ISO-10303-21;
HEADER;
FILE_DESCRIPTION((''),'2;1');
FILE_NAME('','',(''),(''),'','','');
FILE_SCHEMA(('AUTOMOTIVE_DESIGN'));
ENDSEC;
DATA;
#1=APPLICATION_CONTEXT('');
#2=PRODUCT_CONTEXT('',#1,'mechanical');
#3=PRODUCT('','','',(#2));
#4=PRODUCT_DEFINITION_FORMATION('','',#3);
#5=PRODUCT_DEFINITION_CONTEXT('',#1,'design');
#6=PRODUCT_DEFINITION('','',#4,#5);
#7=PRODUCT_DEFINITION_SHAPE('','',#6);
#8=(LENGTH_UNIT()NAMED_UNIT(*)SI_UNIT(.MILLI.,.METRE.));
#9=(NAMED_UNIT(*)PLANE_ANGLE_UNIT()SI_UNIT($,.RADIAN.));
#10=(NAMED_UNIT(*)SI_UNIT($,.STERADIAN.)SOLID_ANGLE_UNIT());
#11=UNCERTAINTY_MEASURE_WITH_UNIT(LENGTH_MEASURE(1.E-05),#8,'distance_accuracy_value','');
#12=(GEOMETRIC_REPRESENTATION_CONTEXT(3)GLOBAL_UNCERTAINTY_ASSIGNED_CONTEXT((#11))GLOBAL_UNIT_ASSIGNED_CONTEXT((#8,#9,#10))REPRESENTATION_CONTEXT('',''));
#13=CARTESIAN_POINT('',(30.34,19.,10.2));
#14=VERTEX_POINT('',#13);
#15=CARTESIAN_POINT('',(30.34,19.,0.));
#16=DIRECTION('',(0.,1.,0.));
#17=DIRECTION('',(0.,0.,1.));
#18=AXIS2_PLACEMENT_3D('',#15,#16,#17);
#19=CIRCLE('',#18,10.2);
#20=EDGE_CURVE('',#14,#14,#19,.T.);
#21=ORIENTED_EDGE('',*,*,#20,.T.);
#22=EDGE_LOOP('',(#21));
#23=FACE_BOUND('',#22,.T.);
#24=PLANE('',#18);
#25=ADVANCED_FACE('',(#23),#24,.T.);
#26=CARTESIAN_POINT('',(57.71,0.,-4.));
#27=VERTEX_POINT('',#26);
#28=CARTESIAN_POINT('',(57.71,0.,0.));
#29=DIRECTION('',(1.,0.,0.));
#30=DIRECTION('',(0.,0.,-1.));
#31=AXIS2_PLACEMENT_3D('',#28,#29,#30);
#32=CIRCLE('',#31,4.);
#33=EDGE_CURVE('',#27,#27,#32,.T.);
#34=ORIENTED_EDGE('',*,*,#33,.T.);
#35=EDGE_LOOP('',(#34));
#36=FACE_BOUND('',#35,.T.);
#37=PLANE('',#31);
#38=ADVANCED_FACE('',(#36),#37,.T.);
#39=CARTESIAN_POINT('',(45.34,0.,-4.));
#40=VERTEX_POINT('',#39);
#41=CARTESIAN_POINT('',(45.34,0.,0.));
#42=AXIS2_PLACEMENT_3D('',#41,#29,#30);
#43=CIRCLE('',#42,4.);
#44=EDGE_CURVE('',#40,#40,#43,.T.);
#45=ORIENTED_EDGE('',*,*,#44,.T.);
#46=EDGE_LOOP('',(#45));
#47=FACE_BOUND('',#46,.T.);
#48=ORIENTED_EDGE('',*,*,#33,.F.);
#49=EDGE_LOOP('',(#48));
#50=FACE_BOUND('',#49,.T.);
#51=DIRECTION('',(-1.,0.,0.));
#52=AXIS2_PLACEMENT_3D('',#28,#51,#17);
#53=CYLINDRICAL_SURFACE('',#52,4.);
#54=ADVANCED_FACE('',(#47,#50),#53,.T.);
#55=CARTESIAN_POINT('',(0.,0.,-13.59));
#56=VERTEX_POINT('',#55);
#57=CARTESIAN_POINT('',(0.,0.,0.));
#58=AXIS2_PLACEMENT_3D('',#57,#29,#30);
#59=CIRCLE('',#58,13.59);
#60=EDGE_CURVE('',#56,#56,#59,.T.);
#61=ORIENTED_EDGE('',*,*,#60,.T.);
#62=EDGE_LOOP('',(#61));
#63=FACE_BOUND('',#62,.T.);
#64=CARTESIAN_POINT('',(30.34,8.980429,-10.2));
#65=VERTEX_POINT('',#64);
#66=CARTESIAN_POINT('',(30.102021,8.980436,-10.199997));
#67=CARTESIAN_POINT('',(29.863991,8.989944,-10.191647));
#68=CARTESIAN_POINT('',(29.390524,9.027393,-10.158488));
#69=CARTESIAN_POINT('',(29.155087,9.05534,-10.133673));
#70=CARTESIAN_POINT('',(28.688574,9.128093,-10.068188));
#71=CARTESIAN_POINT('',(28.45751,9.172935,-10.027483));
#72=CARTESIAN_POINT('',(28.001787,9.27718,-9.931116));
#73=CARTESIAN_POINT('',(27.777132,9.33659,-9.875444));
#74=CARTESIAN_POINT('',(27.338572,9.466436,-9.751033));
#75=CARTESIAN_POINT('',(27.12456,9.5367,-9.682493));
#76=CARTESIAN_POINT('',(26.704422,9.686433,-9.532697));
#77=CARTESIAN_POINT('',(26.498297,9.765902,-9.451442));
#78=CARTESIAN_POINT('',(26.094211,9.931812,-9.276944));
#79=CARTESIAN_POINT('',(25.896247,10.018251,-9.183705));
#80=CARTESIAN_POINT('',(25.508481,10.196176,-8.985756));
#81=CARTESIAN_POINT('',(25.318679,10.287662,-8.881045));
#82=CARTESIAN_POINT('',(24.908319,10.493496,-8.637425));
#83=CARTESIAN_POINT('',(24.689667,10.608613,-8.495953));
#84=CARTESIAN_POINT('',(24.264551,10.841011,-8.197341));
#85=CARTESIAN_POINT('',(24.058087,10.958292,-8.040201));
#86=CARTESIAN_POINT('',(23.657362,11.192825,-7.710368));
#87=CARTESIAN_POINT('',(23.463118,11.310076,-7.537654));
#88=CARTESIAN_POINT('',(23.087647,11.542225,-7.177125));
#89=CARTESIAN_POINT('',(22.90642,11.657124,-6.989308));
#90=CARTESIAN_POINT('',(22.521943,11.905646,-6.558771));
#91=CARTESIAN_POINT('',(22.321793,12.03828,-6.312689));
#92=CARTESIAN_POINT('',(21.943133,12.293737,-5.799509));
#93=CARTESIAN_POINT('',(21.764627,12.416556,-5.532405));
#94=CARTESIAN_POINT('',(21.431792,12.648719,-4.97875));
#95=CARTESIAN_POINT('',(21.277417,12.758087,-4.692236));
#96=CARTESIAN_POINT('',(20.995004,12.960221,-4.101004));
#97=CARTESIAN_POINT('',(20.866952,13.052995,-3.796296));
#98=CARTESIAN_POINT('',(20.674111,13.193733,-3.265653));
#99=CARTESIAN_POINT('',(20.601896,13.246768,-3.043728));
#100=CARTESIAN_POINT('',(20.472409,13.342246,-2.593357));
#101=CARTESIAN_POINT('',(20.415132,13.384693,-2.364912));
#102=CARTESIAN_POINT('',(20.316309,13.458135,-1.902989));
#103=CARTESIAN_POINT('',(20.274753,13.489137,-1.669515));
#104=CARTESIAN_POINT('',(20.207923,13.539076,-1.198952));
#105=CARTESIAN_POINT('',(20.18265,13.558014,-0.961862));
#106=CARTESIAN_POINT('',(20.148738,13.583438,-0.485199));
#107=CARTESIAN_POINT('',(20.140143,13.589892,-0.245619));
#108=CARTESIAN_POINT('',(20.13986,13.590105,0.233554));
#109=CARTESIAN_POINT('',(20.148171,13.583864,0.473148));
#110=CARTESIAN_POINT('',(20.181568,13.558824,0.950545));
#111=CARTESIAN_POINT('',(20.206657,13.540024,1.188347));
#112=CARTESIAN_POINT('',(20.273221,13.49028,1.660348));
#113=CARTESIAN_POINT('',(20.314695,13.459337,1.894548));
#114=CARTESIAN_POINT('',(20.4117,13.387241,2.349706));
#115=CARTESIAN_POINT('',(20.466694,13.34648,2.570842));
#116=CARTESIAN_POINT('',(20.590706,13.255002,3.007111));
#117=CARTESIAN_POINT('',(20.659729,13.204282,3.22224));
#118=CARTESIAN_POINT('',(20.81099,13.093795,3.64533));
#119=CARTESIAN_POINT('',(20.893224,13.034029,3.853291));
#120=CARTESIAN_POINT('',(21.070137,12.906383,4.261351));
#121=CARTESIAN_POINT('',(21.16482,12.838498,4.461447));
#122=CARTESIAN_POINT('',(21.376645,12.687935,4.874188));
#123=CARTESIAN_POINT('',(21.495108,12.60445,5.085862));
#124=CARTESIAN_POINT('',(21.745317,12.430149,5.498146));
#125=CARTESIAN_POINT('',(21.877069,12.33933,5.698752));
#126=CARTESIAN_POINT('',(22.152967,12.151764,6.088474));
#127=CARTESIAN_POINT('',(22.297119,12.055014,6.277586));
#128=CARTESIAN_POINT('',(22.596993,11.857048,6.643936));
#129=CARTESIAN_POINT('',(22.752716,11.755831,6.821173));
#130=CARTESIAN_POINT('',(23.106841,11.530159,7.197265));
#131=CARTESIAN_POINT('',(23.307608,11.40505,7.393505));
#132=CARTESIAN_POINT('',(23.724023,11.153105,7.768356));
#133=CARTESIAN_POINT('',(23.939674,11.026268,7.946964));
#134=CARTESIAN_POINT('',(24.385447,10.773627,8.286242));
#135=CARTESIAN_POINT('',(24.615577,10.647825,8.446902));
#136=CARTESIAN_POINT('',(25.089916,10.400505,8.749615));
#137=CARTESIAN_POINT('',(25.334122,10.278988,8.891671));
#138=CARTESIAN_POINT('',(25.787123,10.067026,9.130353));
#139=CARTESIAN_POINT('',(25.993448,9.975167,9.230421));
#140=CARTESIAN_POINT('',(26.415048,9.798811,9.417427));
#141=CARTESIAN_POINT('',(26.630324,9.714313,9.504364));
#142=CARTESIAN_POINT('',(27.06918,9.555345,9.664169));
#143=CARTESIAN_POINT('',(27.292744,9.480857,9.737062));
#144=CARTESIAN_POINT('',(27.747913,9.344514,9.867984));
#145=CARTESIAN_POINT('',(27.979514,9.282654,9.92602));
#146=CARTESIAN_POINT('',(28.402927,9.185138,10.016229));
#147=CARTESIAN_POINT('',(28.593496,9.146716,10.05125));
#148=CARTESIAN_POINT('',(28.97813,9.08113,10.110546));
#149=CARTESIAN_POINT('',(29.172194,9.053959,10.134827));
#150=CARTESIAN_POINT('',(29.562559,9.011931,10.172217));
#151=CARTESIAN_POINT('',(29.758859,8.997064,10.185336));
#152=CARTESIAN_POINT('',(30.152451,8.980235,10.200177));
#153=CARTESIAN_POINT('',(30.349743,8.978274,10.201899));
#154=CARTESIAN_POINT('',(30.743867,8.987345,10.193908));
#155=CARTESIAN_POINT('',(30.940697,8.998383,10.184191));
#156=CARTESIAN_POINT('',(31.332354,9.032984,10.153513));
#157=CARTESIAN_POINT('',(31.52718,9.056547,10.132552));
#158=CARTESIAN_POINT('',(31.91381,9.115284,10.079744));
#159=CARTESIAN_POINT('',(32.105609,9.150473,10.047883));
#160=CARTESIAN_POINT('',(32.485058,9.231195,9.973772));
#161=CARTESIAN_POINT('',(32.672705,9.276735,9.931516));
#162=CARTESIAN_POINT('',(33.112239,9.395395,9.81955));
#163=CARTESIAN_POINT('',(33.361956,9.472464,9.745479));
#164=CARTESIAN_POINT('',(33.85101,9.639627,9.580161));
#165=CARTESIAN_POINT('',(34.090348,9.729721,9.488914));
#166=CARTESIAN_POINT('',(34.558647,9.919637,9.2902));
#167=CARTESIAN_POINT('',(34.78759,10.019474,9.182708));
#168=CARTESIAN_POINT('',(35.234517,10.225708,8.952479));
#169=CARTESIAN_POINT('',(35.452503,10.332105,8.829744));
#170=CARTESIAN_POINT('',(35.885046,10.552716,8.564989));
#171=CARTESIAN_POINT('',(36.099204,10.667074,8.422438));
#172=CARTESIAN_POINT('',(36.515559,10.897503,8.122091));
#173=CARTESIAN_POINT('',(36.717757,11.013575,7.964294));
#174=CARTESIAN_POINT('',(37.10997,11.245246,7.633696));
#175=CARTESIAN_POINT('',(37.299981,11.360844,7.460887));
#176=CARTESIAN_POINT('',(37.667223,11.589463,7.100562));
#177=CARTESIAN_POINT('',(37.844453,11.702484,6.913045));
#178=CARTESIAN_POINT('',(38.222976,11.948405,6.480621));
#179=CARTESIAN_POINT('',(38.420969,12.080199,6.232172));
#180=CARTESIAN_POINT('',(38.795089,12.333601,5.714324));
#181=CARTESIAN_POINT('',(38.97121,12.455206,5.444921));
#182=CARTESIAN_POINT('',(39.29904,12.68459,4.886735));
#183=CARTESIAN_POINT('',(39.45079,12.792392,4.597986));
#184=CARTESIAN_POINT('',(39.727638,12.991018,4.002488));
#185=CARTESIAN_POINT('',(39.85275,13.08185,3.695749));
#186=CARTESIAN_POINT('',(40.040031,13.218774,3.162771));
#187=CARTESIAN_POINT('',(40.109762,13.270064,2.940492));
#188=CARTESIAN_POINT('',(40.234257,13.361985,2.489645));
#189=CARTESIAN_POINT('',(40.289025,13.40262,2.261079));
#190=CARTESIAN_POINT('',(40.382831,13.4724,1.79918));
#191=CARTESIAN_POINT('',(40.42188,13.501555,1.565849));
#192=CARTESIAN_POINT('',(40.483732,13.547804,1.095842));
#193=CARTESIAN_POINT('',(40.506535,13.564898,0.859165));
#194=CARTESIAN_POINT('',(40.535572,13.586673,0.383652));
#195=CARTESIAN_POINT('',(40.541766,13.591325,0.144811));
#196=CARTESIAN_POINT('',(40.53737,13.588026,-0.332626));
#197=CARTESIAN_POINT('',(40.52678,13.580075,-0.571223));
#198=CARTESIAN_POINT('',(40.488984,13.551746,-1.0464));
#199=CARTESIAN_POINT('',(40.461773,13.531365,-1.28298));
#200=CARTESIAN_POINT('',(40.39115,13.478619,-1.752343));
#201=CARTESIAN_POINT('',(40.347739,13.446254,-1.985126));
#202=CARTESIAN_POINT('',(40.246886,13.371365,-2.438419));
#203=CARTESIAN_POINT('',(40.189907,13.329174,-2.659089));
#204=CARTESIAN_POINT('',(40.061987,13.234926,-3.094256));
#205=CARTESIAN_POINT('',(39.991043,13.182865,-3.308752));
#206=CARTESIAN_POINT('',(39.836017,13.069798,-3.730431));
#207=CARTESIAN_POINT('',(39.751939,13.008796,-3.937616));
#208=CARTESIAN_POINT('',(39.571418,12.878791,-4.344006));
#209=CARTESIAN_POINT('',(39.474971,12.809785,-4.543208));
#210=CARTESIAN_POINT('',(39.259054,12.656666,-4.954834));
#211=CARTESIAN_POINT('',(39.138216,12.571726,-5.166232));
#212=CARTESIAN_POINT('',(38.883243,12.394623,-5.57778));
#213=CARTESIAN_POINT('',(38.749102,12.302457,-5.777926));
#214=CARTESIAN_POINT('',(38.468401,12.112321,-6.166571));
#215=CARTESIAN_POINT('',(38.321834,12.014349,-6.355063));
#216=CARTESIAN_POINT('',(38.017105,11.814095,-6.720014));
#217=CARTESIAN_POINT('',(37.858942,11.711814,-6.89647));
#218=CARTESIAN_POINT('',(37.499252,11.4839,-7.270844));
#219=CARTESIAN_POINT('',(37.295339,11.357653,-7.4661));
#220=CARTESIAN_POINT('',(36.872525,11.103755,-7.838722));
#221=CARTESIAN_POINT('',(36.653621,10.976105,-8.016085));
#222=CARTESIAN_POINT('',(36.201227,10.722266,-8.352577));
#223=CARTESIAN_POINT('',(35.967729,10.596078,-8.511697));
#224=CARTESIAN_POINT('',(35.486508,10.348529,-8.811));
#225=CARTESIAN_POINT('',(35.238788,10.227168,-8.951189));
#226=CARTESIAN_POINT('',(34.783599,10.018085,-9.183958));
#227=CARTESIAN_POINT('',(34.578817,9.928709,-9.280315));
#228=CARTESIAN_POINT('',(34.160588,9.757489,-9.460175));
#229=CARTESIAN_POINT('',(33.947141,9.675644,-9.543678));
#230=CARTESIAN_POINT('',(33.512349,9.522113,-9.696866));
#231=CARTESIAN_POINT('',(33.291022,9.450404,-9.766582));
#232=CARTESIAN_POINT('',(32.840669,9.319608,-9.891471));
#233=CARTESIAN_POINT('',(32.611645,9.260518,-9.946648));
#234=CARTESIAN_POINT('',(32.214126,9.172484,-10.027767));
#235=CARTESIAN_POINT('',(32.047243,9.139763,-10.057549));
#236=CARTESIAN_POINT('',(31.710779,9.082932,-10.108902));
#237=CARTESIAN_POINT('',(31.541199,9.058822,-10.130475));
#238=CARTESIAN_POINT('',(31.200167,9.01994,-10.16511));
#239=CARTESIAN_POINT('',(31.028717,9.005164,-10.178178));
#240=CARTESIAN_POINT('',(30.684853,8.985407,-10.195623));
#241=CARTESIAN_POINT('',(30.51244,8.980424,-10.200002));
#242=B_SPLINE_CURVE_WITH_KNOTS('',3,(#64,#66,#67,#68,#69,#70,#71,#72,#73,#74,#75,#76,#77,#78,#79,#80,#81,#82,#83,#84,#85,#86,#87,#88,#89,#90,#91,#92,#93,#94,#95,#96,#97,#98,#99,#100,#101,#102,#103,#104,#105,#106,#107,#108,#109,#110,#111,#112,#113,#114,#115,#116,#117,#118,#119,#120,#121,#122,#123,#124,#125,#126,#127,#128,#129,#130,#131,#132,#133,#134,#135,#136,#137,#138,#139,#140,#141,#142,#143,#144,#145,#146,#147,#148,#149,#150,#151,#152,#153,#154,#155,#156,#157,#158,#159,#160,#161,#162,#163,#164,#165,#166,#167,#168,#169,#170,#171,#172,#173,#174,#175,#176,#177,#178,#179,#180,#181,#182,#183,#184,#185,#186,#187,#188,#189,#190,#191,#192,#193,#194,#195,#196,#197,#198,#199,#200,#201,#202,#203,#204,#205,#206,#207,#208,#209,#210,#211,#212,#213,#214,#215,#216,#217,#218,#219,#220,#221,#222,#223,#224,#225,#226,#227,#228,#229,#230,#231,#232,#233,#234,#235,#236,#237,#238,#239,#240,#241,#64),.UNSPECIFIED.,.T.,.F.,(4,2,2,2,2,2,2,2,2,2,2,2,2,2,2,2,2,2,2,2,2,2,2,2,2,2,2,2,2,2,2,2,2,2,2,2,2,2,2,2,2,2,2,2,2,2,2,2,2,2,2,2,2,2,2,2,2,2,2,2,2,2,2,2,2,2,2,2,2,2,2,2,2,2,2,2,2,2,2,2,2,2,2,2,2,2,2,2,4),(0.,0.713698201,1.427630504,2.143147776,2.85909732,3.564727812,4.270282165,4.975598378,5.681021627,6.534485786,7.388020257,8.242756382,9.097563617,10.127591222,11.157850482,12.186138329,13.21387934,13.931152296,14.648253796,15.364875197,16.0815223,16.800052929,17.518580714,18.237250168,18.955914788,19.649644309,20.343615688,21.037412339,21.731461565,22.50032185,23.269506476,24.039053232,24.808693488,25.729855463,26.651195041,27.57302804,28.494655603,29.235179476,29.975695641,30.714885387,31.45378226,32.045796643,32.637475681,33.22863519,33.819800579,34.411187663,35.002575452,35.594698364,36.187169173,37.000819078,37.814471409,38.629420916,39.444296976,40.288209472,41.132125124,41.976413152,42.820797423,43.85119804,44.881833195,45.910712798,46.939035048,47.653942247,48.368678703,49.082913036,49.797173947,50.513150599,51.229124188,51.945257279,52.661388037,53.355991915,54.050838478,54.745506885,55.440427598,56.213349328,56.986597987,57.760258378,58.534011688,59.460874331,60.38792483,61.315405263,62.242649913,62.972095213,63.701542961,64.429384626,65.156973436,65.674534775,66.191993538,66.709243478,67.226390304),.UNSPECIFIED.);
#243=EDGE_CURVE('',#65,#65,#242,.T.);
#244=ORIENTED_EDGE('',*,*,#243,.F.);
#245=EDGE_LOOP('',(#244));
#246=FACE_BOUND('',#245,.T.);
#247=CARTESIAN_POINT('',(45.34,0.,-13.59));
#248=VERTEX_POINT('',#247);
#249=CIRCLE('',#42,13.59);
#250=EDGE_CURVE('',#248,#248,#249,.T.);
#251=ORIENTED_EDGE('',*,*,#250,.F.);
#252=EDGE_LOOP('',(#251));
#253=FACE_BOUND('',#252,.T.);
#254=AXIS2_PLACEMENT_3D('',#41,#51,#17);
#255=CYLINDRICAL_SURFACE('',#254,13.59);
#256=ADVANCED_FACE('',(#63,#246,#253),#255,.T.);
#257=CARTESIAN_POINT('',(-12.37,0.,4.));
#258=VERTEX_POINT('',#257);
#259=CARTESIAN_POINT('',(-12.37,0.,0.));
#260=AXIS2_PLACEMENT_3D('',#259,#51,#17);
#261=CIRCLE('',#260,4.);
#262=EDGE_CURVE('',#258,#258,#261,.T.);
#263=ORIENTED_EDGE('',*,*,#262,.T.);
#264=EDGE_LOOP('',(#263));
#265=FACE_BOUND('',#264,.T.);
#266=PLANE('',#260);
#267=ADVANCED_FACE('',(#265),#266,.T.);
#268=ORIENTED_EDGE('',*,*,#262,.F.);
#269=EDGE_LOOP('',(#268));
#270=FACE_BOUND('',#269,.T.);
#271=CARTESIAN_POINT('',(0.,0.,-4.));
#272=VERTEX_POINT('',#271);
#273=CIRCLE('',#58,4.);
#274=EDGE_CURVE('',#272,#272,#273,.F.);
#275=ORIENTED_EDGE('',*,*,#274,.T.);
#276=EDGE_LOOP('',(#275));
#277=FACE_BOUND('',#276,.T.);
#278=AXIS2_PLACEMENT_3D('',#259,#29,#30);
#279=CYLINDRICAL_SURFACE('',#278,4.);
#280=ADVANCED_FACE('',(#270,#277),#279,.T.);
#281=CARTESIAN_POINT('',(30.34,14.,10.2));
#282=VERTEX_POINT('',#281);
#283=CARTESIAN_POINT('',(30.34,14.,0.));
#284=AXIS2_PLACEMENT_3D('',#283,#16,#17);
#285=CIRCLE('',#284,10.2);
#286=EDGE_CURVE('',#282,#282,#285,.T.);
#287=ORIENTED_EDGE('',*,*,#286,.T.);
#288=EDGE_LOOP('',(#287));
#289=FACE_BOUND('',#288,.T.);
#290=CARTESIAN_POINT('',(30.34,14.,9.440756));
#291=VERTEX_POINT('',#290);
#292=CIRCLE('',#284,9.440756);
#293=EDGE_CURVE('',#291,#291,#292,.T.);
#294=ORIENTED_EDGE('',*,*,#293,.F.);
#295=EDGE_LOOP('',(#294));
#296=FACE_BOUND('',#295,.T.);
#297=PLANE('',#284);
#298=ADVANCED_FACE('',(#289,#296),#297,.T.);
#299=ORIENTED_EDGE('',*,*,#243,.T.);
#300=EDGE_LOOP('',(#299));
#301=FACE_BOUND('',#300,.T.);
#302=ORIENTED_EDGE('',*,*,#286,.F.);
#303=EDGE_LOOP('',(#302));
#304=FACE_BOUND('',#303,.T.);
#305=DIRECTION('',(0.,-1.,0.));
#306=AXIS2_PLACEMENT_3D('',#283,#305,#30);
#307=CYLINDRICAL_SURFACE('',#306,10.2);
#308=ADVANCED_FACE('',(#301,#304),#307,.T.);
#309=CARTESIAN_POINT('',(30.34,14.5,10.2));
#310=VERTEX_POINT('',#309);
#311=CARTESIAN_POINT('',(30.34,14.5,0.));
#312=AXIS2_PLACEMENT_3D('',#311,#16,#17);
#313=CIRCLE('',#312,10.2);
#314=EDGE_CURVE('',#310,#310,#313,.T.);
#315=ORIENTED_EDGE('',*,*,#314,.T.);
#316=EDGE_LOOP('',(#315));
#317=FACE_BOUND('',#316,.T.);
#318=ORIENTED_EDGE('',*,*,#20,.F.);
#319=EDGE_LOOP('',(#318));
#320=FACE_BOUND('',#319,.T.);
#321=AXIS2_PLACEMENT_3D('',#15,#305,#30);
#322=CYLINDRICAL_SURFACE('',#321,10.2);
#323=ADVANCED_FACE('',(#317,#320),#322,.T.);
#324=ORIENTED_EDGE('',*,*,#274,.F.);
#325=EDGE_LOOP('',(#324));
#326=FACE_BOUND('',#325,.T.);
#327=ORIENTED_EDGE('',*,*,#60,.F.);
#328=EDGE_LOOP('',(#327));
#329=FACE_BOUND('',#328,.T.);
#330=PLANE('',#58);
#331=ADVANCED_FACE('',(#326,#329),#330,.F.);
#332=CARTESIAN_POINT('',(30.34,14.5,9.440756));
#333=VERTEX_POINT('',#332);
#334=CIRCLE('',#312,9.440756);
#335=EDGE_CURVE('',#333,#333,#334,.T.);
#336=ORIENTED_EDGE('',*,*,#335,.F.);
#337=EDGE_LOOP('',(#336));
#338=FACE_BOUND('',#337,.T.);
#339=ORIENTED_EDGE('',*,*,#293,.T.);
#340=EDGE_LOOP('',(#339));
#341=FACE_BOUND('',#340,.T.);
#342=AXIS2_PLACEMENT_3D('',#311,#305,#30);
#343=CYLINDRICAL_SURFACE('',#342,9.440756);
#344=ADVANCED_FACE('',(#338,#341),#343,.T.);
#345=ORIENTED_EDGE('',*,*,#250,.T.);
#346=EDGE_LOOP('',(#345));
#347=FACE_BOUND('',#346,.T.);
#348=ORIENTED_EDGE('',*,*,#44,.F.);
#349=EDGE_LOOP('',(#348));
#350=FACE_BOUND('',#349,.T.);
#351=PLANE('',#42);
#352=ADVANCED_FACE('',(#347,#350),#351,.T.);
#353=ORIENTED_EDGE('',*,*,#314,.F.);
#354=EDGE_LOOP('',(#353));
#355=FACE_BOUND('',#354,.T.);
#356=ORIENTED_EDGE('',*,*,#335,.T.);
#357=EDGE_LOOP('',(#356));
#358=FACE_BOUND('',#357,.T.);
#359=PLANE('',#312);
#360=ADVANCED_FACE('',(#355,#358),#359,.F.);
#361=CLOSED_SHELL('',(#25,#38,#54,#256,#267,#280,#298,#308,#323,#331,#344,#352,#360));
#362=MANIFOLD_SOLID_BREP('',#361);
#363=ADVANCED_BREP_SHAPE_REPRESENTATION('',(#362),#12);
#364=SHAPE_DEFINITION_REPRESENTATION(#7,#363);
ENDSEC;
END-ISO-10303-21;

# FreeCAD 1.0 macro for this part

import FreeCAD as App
import Part
import Sketcher
from FreeCAD import Vector
Q = App.Units.Quantity

doc = App.newDocument("Part")
body = doc.addObject("PartDesign::Body", "Body")

sketch1 = doc.addObject("Sketcher::SketchObject", "Sketch")
body.addObject(sketch1)
sketch1.AttachmentSupport = (doc.YZ_Plane, [""])
sketch1.MapMode = "FlatFace"
sketch1.addGeometry(Part.Circle(Vector(0, 0, 0), Vector(0, 0, 1), 14), False)
sketch1.addConstraint([
    Sketcher.Constraint("Coincident", 0, 3, -1, 1),
    Sketcher.Constraint("Diameter", 0, Q("27.18 mm")),
])
pad1 = doc.addObject("PartDesign::Pad", "Pad")
body.addObject(pad1)
pad1.Profile = sketch1
pad1.Length = 45.34

sketch2 = doc.addObject("Sketcher::SketchObject", "Sketch001")
body.addObject(sketch2)
sketch2.AttachmentSupport = (doc.YZ_Plane, [""])
sketch2.MapMode = "FlatFace"
sketch2.AttachmentOffset = App.Placement(Vector(0, 0, 45.34), App.Rotation())
sketch2.addGeometry(Part.Circle(Vector(0, 0, 0), Vector(0, 0, 1), 4), False)
sketch2.addConstraint([
    Sketcher.Constraint("Coincident", 0, 3, -1, 1),
    Sketcher.Constraint("Diameter", 0, Q("8 mm")),
])
pad2 = doc.addObject("PartDesign::Pad", "Pad001")
body.addObject(pad2)
pad2.Profile = sketch2
pad2.Length = 12.37

sketch3 = doc.addObject("Sketcher::SketchObject", "Sketch002")
body.addObject(sketch3)
sketch3.AttachmentSupport = (doc.YZ_Plane, [""])
sketch3.MapMode = "FlatFace"
sketch3.AttachmentOffset = App.Placement(Vector(0, 0, -12.37), App.Rotation())
sketch3.addGeometry(Part.Circle(Vector(0, 0, 0), Vector(0, 0, 1), 4), False)
sketch3.addConstraint([
    Sketcher.Constraint("Coincident", 0, 3, -1, 1),
    Sketcher.Constraint("Diameter", 0, Q("8 mm")),
])
pad3 = doc.addObject("PartDesign::Pad", "Pad002")
body.addObject(pad3)
pad3.Profile = sketch3
pad3.Length = 12.37

sketch4 = doc.addObject("Sketcher::SketchObject", "Sketch003")
body.addObject(sketch4)
sketch4.AttachmentSupport = (doc.XZ_Plane, [""])
sketch4.MapMode = "FlatFace"
sketch4.addGeometry(Part.Circle(Vector(30, 0, 0), Vector(0, 0, 1), 10), False)
sketch4.addConstraint([
    Sketcher.Constraint("PointOnObject", 0, 3, -1),
    Sketcher.Constraint("Diameter", 0, Q("20.4 mm")),
    Sketcher.Constraint("DistanceX", -1, 1, 0, 3, Q("30.34 mm")),
])
pad4 = doc.addObject("PartDesign::Pad", "Pad003")
body.addObject(pad4)
pad4.Profile = sketch4
pad4.Length = 14
pad4.Reversed = True

sketch5 = doc.addObject("Sketcher::SketchObject", "Sketch004")
body.addObject(sketch5)
sketch5.AttachmentSupport = (doc.XZ_Plane, [""])
sketch5.MapMode = "FlatFace"
sketch5.AttachmentOffset = App.Placement(Vector(0, 0, -14), App.Rotation())
sketch5.addGeometry(Part.Circle(Vector(30, 0, 0), Vector(0, 0, 1), 9), False)
sketch5.addConstraint([
    Sketcher.Constraint("PointOnObject", 0, 3, -1),
    Sketcher.Constraint("DistanceX", -1, 1, 0, 3, Q("30.34 mm")),
    Sketcher.Constraint("Diameter", 0, Q("18.881513 mm")),
])
pad5 = doc.addObject("PartDesign::Pad", "Pad004")
body.addObject(pad5)
pad5.Profile = sketch5
pad5.Length = 0.5
pad5.Reversed = True

sketch6 = doc.addObject("Sketcher::SketchObject", "Sketch005")
body.addObject(sketch6)
sketch6.AttachmentSupport = (doc.XZ_Plane, [""])
sketch6.MapMode = "FlatFace"
sketch6.AttachmentOffset = App.Placement(Vector(0, 0, -14.5), App.Rotation())
sketch6.addGeometry(Part.Circle(Vector(30, 0, 0), Vector(0, 0, 1), 10), False)
sketch6.addConstraint([
    Sketcher.Constraint("PointOnObject", 0, 3, -1),
    Sketcher.Constraint("Diameter", 0, Q("20.4 mm")),
    Sketcher.Constraint("DistanceX", -1, 1, 0, 3, Q("30.34 mm")),
])
pad6 = doc.addObject("PartDesign::Pad", "Pad005")
body.addObject(pad6)
pad6.Profile = sketch6
pad6.Length = 4.5
pad6.Reversed = True

doc.recompute()
